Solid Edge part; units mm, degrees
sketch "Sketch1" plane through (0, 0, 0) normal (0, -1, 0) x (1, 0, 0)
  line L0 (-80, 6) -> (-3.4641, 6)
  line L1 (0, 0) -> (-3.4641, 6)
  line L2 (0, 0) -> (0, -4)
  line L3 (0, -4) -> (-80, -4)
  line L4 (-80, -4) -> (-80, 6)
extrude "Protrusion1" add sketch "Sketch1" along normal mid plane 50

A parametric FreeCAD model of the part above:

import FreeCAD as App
import Part
import Sketcher
Q = App.Units.Quantity

doc = App.newDocument("Part")
body = doc.addObject("PartDesign::Body", "Body")

# Sketch on XZ plane
sketch1 = doc.addObject("Sketcher::SketchObject", "Sketch")
body.addObject(sketch1)
sketch1.AttachmentSupport = (doc.XZ_Plane, [""])
sketch1.MapMode = "FlatFace"
sketch1.addGeometry([
    Part.LineSegment(App.Vector(-3.5, 6, 0), App.Vector(-80, 6, 0)),  # 0
    Part.LineSegment(App.Vector(-80, 6, 0), App.Vector(-80, -4, 0)),  # 1
    Part.LineSegment(App.Vector(-80, -4, 0), App.Vector(0, -4, 0)),  # 2
    Part.LineSegment(App.Vector(0, -4, 0), App.Vector(0, 0, 0)),  # 3
    Part.LineSegment(App.Vector(0, 0, 0), App.Vector(-3.5, 6, 0)),  # 4
], False)
sketch1.addConstraint([
    Sketcher.Constraint("Coincident", 0, 2, 1, 1),
    Sketcher.Constraint("Coincident", 1, 2, 2, 1),
    Sketcher.Constraint("Coincident", 2, 2, 3, 1),
    Sketcher.Constraint("Coincident", 3, 2, 4, 1),
    Sketcher.Constraint("Coincident", 4, 2, 0, 1),
    Sketcher.Constraint("Horizontal", 0),
    Sketcher.Constraint("Vertical", 1),
    Sketcher.Constraint("Horizontal", 2),
    Sketcher.Constraint("Vertical", 3),
    Sketcher.Constraint("Coincident", 3, 2, -1, 1),
    Sketcher.Constraint("DistanceX", 2, 1, 2, 2, 80.0),
    Sketcher.Constraint("DistanceY", 1, 2, 1, 1, 10.0),
    Sketcher.Constraint("DistanceY", 3, 1, 3, 2, 4.0),
    Sketcher.Constraint("Angle", 4, Q("120 deg")),
])
pad1 = doc.addObject("PartDesign::Pad", "Pad")
body.addObject(pad1)
pad1.Profile = sketch1
pad1.Length = 50
pad1.Midplane = True

doc.recompute()
